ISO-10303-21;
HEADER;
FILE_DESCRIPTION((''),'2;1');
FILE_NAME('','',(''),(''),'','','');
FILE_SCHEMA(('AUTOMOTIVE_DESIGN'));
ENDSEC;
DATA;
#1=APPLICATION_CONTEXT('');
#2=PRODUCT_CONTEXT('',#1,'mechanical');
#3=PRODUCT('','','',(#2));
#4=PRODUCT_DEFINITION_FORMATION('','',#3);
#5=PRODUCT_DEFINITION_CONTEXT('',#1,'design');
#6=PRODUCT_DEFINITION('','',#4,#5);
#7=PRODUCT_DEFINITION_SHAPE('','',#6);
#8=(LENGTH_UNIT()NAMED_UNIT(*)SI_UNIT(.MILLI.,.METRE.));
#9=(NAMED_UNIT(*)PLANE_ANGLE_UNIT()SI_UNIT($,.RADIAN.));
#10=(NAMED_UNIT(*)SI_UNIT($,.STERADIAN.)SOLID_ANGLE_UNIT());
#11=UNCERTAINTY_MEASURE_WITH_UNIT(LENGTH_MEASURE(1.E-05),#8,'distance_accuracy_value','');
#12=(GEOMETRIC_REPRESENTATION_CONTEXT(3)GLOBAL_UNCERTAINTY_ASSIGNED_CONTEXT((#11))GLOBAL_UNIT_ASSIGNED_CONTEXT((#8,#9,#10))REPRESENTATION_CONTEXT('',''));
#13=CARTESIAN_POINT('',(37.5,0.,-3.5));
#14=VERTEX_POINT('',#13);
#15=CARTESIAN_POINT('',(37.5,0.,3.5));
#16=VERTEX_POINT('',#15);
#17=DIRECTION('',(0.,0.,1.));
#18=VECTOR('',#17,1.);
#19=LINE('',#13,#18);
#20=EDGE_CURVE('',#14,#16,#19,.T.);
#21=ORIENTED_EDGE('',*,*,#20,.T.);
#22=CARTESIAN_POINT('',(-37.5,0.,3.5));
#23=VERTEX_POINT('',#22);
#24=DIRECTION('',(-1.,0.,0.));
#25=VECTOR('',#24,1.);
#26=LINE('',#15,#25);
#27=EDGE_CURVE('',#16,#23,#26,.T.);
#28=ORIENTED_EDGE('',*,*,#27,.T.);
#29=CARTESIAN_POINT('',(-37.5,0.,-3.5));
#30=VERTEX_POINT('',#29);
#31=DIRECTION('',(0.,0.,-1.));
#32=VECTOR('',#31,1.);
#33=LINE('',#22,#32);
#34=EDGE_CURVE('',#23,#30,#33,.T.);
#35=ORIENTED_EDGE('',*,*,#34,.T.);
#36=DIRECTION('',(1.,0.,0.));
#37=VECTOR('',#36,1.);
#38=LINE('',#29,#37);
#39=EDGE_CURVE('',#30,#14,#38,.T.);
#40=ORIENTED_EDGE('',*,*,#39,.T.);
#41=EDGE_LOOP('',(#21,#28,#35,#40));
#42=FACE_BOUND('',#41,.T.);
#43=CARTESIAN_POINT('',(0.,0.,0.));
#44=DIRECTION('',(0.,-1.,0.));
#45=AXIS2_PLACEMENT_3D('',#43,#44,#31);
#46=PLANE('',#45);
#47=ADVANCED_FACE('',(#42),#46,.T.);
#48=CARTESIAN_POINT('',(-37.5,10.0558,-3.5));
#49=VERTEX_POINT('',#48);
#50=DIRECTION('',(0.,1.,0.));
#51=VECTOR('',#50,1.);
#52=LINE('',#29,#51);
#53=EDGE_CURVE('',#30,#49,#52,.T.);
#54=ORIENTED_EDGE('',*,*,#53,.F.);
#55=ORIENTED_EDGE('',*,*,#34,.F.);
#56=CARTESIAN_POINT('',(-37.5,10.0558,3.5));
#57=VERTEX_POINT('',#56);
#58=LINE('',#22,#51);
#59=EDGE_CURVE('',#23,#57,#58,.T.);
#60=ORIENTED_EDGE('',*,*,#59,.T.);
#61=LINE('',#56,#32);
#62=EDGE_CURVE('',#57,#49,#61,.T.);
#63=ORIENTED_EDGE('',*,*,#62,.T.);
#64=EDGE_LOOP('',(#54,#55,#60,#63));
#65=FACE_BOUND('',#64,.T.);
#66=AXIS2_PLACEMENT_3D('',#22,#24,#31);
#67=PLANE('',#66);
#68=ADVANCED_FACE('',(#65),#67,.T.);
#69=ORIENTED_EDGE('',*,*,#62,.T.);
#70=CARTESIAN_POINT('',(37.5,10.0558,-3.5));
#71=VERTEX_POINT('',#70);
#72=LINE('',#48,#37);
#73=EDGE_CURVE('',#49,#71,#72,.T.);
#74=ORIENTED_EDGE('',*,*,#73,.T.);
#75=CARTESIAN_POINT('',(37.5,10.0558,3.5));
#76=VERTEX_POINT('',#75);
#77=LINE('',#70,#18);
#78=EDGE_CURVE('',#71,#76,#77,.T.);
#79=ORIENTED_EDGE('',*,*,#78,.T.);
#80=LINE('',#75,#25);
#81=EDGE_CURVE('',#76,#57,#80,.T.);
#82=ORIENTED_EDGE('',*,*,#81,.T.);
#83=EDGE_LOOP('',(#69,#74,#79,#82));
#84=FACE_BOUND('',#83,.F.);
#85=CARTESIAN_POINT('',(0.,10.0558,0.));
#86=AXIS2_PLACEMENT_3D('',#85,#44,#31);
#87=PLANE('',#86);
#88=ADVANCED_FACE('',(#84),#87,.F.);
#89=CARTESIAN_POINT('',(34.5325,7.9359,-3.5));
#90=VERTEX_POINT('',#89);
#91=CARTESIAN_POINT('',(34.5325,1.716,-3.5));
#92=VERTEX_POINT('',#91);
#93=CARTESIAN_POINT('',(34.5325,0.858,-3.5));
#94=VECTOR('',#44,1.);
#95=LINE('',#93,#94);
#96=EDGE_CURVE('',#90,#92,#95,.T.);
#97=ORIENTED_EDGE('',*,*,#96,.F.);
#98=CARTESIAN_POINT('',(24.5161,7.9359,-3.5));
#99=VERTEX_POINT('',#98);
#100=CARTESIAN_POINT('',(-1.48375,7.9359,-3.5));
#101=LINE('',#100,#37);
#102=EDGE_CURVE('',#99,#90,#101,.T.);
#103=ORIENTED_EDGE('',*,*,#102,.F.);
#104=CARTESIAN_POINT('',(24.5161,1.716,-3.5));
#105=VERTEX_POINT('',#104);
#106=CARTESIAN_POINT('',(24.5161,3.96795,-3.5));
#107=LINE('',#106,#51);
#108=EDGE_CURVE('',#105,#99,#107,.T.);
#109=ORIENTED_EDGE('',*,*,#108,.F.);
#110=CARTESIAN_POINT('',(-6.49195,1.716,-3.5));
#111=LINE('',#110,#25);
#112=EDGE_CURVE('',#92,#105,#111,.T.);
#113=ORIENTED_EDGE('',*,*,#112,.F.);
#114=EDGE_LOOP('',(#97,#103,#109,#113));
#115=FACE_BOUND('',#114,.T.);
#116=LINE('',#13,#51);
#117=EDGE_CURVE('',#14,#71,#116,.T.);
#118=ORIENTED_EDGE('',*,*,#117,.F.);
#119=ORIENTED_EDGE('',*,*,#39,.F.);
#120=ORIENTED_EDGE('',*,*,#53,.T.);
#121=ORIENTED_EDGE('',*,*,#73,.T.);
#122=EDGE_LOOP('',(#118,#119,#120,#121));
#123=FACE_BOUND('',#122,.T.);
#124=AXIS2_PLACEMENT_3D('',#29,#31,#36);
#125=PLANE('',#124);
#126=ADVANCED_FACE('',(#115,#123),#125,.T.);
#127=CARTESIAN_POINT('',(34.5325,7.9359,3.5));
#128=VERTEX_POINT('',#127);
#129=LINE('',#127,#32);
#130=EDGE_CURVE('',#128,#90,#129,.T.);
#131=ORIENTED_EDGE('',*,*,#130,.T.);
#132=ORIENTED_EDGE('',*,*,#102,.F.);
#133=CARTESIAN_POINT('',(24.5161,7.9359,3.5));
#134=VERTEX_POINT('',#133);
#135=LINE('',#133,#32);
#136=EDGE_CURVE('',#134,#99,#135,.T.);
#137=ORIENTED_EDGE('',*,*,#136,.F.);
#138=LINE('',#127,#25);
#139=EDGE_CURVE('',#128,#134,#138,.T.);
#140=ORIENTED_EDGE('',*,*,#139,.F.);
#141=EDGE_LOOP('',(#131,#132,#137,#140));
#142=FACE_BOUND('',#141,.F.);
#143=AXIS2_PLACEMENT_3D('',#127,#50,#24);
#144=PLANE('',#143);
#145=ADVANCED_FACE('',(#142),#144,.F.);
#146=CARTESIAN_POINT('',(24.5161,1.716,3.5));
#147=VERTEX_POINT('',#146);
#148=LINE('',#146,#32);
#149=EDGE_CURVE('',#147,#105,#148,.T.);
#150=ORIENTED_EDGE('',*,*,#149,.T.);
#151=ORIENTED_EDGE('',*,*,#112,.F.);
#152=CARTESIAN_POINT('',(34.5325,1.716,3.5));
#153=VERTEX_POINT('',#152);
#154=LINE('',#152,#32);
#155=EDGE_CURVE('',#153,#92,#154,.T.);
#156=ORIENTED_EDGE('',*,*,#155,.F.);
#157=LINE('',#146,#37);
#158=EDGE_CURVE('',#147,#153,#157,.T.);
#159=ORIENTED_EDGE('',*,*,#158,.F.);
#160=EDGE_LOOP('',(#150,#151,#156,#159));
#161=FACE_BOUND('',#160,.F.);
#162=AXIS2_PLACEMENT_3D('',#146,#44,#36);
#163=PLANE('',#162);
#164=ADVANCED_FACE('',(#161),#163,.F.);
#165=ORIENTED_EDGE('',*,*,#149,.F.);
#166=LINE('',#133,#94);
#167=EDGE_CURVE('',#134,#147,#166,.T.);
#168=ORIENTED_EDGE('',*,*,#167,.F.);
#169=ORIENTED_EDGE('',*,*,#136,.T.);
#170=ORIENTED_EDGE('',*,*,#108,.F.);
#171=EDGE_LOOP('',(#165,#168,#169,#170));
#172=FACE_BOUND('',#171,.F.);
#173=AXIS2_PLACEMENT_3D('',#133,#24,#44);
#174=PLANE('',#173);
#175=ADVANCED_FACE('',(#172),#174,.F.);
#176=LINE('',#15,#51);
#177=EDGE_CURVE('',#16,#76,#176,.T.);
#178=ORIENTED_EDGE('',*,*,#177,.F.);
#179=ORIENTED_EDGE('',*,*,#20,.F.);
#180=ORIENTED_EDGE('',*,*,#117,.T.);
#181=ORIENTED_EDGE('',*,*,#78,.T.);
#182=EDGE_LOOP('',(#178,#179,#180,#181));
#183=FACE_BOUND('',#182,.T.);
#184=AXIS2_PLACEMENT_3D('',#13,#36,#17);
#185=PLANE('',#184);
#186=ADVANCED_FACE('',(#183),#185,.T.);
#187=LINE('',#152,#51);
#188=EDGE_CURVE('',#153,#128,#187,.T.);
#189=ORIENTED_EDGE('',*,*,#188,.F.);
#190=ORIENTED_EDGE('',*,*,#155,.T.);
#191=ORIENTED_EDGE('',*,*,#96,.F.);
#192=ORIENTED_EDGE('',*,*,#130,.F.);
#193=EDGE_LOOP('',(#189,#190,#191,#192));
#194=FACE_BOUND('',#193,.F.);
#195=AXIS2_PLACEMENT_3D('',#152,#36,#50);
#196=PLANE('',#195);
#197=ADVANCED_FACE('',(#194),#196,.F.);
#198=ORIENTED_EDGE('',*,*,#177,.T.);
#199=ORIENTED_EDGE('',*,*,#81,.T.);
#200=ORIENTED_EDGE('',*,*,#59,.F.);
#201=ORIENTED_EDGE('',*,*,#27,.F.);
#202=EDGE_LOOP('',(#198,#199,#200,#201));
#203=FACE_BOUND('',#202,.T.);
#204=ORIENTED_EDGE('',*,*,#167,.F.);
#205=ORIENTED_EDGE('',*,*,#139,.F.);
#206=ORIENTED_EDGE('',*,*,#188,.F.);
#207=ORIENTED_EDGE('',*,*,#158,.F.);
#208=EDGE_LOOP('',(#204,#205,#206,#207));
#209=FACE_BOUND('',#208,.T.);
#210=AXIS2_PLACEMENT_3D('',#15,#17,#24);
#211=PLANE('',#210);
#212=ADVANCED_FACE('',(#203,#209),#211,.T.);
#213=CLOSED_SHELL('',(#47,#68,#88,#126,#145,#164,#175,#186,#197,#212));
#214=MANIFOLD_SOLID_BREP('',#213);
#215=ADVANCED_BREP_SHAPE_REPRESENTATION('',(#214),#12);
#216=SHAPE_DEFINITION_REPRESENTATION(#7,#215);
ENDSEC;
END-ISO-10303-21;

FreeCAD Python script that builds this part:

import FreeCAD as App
import Part
import Sketcher
from FreeCAD import Vector
Q = App.Units.Quantity


def add_polygon(sketch, points):
    """Adds a closed chain of lines whose ends are joined by coincident constraints."""
    first, n = sketch.GeometryCount, len(points)
    for a, b in zip(points, points[1:] + points[:1]):
        sketch.addGeometry(Part.LineSegment(App.Vector(*a, 0), App.Vector(*b, 0)), False)
    for i in range(n):
        sketch.addConstraint(Sketcher.Constraint("Coincident", first + i, 2, first + (i + 1) % n, 1))

doc = App.newDocument("Part")
params = doc.addObject("Spreadsheet::Sheet", "Params")
for row, (alias, value) in enumerate([
    ("sketch1_width", "75 mm"),
    ("sketch1_height", "7 mm"),
    ("pad1_length", "10.0558 mm"),
    ("sketch2_height", "6.22 mm"),
], start=1):
    params.set(f"A{row}", alias)
    params.set(f"B{row}", "=" + value)
    params.setAlias(f"B{row}", alias)

body = doc.addObject("PartDesign::Body", "Body")

sketch1 = body.newObject("Sketcher::SketchObject", "Sketch")
sketch1.AttachmentSupport = (doc.getObject("XZ_Plane"), [""])
sketch1.MapMode = "FlatFace"
add_polygon(sketch1, [(38, 4), (-38, 4), (-38, -4), (38, -4)])
sketch1.addConstraint(Sketcher.Constraint("Horizontal", 0))
sketch1.addConstraint(Sketcher.Constraint("Vertical", 1))
sketch1.addConstraint(Sketcher.Constraint("Horizontal", 2))
sketch1.addConstraint(Sketcher.Constraint("Vertical", 3))
sketch1.addConstraint(Sketcher.Constraint("Symmetric", 0, 2, 2, 2, -1, 1))
sketch1.addConstraint(Sketcher.Constraint("DistanceX", 0, 2, 0, 1, Q("75 mm")))
sketch1.addConstraint(Sketcher.Constraint("DistanceY", 1, 2, 1, 1, Q("7 mm")))
sketch1.setExpression("Constraints[9]", "Params.sketch1_width")
sketch1.setExpression("Constraints[10]", "Params.sketch1_height")
pad1 = body.newObject("PartDesign::Pad", "Pad")
pad1.Profile = sketch1
pad1.setExpression("Length", "Params.pad1_length")
pad1.Reversed = True

sketch2 = body.newObject("Sketcher::SketchObject", "Sketch001")
sketch2.AttachmentSupport = (doc.getObject("XY_Plane"), [""])
sketch2.MapMode = "FlatFace"
sketch2.AttachmentOffset = App.Placement(Vector(0, 0, 3.5), App.Rotation())
add_polygon(sketch2, [(25, 8), (25, 2), (35, 2), (35, 8)])
sketch2.addConstraint(Sketcher.Constraint("Vertical", 0))
sketch2.addConstraint(Sketcher.Constraint("Horizontal", 1))
sketch2.addConstraint(Sketcher.Constraint("Vertical", 2))
sketch2.addConstraint(Sketcher.Constraint("Horizontal", 3))
sketch2.addConstraint(Sketcher.Constraint("DistanceY", 0, 2, 0, 1, Q("6.22 mm")))
sketch2.addConstraint(Sketcher.Constraint("DistanceX", 1, 1, 1, 2, Q("10.0164 mm")))
sketch2.addConstraint(Sketcher.Constraint("DistanceX", -1, 1, 0, 2, Q("24.516 mm")))
sketch2.addConstraint(Sketcher.Constraint("DistanceY", -1, 1, 0, 2, Q("1.716 mm")))
sketch2.setExpression("Constraints[8]", "Params.sketch2_height")
pocket1 = body.newObject("PartDesign::Pocket", "Pocket")
pocket1.Profile = sketch2
pocket1.Type = "ThroughAll"

doc.recompute()
